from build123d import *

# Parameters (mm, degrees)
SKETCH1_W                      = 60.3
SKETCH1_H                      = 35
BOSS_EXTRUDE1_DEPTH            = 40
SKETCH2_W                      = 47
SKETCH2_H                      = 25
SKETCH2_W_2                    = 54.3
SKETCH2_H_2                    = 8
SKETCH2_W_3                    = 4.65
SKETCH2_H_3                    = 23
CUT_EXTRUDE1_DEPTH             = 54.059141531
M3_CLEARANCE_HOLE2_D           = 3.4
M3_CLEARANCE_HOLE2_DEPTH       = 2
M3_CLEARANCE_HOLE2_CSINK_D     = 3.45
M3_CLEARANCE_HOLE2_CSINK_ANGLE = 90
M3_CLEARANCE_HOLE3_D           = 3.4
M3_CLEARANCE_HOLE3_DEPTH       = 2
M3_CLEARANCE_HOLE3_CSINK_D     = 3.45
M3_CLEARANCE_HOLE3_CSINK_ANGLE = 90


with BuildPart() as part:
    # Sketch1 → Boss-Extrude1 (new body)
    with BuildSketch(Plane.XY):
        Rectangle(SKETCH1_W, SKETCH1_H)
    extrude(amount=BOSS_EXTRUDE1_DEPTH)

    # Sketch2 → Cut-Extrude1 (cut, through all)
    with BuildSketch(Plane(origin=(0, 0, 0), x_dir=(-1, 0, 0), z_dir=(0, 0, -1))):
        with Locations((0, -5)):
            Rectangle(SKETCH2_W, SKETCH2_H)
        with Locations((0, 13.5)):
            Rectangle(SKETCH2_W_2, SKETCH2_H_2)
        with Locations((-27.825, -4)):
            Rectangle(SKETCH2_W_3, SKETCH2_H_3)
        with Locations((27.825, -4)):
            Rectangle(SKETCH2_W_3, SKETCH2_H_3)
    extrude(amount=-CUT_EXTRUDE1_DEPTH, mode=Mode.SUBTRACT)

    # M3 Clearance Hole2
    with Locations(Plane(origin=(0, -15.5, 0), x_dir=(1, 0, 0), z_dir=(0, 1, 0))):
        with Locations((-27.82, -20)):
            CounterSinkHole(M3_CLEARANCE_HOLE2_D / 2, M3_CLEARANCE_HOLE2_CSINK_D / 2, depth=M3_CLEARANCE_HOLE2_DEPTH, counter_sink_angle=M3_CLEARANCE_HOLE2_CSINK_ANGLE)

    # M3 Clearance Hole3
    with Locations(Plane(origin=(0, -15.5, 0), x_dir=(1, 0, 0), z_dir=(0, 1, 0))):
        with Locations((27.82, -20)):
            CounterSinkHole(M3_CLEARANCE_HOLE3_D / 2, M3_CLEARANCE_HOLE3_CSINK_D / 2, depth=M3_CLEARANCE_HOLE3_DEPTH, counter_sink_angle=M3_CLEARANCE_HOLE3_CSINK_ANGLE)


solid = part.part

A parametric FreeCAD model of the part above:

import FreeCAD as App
import Part
import Sketcher
Q = App.Units.Quantity


def add_polygon(sketch, points):
    """Adds a closed chain of lines whose ends are joined by coincident constraints."""
    first, n = sketch.GeometryCount, len(points)
    for a, b in zip(points, points[1:] + points[:1]):
        sketch.addGeometry(Part.LineSegment(App.Vector(*a, 0), App.Vector(*b, 0)), False)
    for i in range(n):
        sketch.addConstraint(Sketcher.Constraint("Coincident", first + i, 2, first + (i + 1) % n, 1))

doc = App.newDocument("Part")
body = doc.addObject("PartDesign::Body", "Body")

sketch1 = doc.addObject("Sketcher::SketchObject", "Sketch")
body.addObject(sketch1)
sketch1.AttachmentSupport = (doc.XY_Plane, [""])
sketch1.MapMode = "FlatFace"
add_polygon(sketch1, [(-30, 18), (-30, -18), (30, -18), (30, 18)])
sketch1.addConstraint(Sketcher.Constraint("Vertical", 0))
sketch1.addConstraint(Sketcher.Constraint("Horizontal", 1))
sketch1.addConstraint(Sketcher.Constraint("Vertical", 2))
sketch1.addConstraint(Sketcher.Constraint("Horizontal", 3))
sketch1.addConstraint(Sketcher.Constraint("Symmetric", 0, 2, 2, 2, -1, 1))
sketch1.addConstraint(Sketcher.Constraint("DistanceY", 0, 2, 0, 1, Q("35 mm")))
sketch1.addConstraint(Sketcher.Constraint("DistanceX", 1, 1, 1, 2, Q("60.3 mm")))
pad1 = doc.addObject("PartDesign::Pad", "Pad")
body.addObject(pad1)
pad1.Profile = sketch1
pad1.Length = 40

sketch2 = doc.addObject("Sketcher::SketchObject", "Sketch001")
body.addObject(sketch2)
sketch2.AttachmentSupport = (doc.XY_Plane, [""])
sketch2.MapMode = "FlatFace"
add_polygon(sketch2, [(23.5, 7.5), (23.5, -17.5), (-23.5, -17.5), (-23.5, 7.5)])
add_polygon(sketch2, [(27.1, 17.5), (27.1, 9.5), (-27.1, 9.5), (-27.1, 17.5)])
add_polygon(sketch2, [(30.1, 7.5), (30.1, -15.5), (25.5, -15.5), (25.5, 7.5)])
add_polygon(sketch2, [(-25.5, 7.5), (-25.5, -15.5), (-30.1, -15.5), (-30.1, 7.5)])
sketch2.addConstraint(Sketcher.Constraint("Vertical", 0))
sketch2.addConstraint(Sketcher.Constraint("Horizontal", 1))
sketch2.addConstraint(Sketcher.Constraint("Vertical", 2))
sketch2.addConstraint(Sketcher.Constraint("Horizontal", 3))
sketch2.addConstraint(Sketcher.Constraint("Vertical", 4))
sketch2.addConstraint(Sketcher.Constraint("Horizontal", 5))
sketch2.addConstraint(Sketcher.Constraint("Vertical", 6))
sketch2.addConstraint(Sketcher.Constraint("Horizontal", 7))
sketch2.addConstraint(Sketcher.Constraint("Vertical", 8))
sketch2.addConstraint(Sketcher.Constraint("Horizontal", 9))
sketch2.addConstraint(Sketcher.Constraint("Vertical", 10))
sketch2.addConstraint(Sketcher.Constraint("Horizontal", 11))
sketch2.addConstraint(Sketcher.Constraint("Vertical", 12))
sketch2.addConstraint(Sketcher.Constraint("Horizontal", 13))
sketch2.addConstraint(Sketcher.Constraint("Vertical", 14))
sketch2.addConstraint(Sketcher.Constraint("Horizontal", 15))
sketch2.addConstraint(Sketcher.Constraint("Symmetric", 9, 2, 12, 2, -2))
sketch2.addConstraint(Sketcher.Constraint("Symmetric", 11, 2, 14, 2, -2))
sketch2.addConstraint(Sketcher.Constraint("Horizontal", 3, 2, 10, 2))
sketch2.addConstraint(Sketcher.Constraint("DistanceX", 1, 2, 1, 1, Q("47 mm")))
sketch2.addConstraint(Sketcher.Constraint("DistanceY", 0, 2, 0, 1, Q("25 mm")))
sketch2.addConstraint(Sketcher.Constraint("DistanceY", 4, 2, 4, 1, Q("8 mm")))
sketch2.addConstraint(Sketcher.Constraint("DistanceY", 8, 2, 8, 1, Q("23 mm")))
sketch2.addConstraint(Sketcher.Constraint("DistanceX", 5, 2, 5, 1, Q("54.3 mm")))
sketch2.addConstraint(Sketcher.Constraint("DistanceY", 3, 2, 4, 2, Q("2 mm")))
sketch2.addConstraint(Sketcher.Constraint("DistanceX", 4, 2, 8, 2, Q("3 mm")))
sketch2.addConstraint(Sketcher.Constraint("DistanceX", 0, 2, 9, 2, Q("2 mm")))
sketch2.addConstraint(Sketcher.Constraint("DistanceX", 12, 2, 1, 2, Q("2 mm")))
sketch2.addConstraint(Sketcher.Constraint("DistanceX", 13, 2, 5, 2, Q("3 mm")))
sketch2.addConstraint(Sketcher.Constraint("DistanceY", 0, 2, -1, 1, Q("17.5 mm")))
pocket1 = doc.addObject("PartDesign::Pocket", "Pocket")
body.addObject(pocket1)
pocket1.Profile = sketch2
pocket1.Type = "ThroughAll"
pocket1.Reversed = True

sketch3 = doc.addObject("Sketcher::SketchObject", "Sketch002")
body.addObject(sketch3)
sketch3.AttachmentSupport = (doc.XZ_Plane, [""])
sketch3.MapMode = "FlatFace"
sketch3.AttachmentOffset = App.Placement(App.Vector(0, 0, 15.5), App.Rotation())
sketch3.addGeometry(Part.Circle(App.Vector(-27.8, 20, 0), App.Vector(0, 0, 1), 1.7), False)
sketch3.addConstraint(Sketcher.Constraint("Diameter", 0, Q("3.4 mm")))
sketch3.addConstraint(Sketcher.Constraint("DistanceY", -1, 1, 0, 3, Q("20 mm")))
sketch3.addConstraint(Sketcher.Constraint("DistanceX", 0, 3, -1, 1, Q("27.82 mm")))
doc.recompute()
hole = doc.addObject("PartDesign::Hole", "Hole")
body.addObject(hole)
hole.Profile = sketch3
hole.ThreadType = "None"
hole.Diameter = 3.4
hole.DepthType = "Dimension"
hole.Depth = 2
hole.DrillPoint = "Flat"
hole.HoleCutType = "Countersink"
hole.HoleCutDiameter = 3.45
hole.HoleCutCountersinkAngle = 90
hole.Reversed = True

sketch4 = doc.addObject("Sketcher::SketchObject", "Sketch003")
body.addObject(sketch4)
sketch4.AttachmentSupport = (doc.XZ_Plane, [""])
sketch4.MapMode = "FlatFace"
sketch4.AttachmentOffset = App.Placement(App.Vector(0, 0, 15.5), App.Rotation())
sketch4.addGeometry(Part.Circle(App.Vector(27.8, 20, 0), App.Vector(0, 0, 1), 1.7), False)
sketch4.addConstraint(Sketcher.Constraint("Diameter", 0, Q("3.4 mm")))
sketch4.addConstraint(Sketcher.Constraint("DistanceY", -1, 1, 0, 3, Q("20 mm")))
sketch4.addConstraint(Sketcher.Constraint("DistanceX", -1, 1, 0, 3, Q("27.82 mm")))
doc.recompute()
hole2 = doc.addObject("PartDesign::Hole", "Hole001")
body.addObject(hole2)
hole2.Profile = sketch4
hole2.ThreadType = "None"
hole2.Diameter = 3.4
hole2.DepthType = "Dimension"
hole2.Depth = 2
hole2.DrillPoint = "Flat"
hole2.HoleCutType = "Countersink"
hole2.HoleCutDiameter = 3.45
hole2.HoleCutCountersinkAngle = 90
hole2.Reversed = True

doc.recompute()
